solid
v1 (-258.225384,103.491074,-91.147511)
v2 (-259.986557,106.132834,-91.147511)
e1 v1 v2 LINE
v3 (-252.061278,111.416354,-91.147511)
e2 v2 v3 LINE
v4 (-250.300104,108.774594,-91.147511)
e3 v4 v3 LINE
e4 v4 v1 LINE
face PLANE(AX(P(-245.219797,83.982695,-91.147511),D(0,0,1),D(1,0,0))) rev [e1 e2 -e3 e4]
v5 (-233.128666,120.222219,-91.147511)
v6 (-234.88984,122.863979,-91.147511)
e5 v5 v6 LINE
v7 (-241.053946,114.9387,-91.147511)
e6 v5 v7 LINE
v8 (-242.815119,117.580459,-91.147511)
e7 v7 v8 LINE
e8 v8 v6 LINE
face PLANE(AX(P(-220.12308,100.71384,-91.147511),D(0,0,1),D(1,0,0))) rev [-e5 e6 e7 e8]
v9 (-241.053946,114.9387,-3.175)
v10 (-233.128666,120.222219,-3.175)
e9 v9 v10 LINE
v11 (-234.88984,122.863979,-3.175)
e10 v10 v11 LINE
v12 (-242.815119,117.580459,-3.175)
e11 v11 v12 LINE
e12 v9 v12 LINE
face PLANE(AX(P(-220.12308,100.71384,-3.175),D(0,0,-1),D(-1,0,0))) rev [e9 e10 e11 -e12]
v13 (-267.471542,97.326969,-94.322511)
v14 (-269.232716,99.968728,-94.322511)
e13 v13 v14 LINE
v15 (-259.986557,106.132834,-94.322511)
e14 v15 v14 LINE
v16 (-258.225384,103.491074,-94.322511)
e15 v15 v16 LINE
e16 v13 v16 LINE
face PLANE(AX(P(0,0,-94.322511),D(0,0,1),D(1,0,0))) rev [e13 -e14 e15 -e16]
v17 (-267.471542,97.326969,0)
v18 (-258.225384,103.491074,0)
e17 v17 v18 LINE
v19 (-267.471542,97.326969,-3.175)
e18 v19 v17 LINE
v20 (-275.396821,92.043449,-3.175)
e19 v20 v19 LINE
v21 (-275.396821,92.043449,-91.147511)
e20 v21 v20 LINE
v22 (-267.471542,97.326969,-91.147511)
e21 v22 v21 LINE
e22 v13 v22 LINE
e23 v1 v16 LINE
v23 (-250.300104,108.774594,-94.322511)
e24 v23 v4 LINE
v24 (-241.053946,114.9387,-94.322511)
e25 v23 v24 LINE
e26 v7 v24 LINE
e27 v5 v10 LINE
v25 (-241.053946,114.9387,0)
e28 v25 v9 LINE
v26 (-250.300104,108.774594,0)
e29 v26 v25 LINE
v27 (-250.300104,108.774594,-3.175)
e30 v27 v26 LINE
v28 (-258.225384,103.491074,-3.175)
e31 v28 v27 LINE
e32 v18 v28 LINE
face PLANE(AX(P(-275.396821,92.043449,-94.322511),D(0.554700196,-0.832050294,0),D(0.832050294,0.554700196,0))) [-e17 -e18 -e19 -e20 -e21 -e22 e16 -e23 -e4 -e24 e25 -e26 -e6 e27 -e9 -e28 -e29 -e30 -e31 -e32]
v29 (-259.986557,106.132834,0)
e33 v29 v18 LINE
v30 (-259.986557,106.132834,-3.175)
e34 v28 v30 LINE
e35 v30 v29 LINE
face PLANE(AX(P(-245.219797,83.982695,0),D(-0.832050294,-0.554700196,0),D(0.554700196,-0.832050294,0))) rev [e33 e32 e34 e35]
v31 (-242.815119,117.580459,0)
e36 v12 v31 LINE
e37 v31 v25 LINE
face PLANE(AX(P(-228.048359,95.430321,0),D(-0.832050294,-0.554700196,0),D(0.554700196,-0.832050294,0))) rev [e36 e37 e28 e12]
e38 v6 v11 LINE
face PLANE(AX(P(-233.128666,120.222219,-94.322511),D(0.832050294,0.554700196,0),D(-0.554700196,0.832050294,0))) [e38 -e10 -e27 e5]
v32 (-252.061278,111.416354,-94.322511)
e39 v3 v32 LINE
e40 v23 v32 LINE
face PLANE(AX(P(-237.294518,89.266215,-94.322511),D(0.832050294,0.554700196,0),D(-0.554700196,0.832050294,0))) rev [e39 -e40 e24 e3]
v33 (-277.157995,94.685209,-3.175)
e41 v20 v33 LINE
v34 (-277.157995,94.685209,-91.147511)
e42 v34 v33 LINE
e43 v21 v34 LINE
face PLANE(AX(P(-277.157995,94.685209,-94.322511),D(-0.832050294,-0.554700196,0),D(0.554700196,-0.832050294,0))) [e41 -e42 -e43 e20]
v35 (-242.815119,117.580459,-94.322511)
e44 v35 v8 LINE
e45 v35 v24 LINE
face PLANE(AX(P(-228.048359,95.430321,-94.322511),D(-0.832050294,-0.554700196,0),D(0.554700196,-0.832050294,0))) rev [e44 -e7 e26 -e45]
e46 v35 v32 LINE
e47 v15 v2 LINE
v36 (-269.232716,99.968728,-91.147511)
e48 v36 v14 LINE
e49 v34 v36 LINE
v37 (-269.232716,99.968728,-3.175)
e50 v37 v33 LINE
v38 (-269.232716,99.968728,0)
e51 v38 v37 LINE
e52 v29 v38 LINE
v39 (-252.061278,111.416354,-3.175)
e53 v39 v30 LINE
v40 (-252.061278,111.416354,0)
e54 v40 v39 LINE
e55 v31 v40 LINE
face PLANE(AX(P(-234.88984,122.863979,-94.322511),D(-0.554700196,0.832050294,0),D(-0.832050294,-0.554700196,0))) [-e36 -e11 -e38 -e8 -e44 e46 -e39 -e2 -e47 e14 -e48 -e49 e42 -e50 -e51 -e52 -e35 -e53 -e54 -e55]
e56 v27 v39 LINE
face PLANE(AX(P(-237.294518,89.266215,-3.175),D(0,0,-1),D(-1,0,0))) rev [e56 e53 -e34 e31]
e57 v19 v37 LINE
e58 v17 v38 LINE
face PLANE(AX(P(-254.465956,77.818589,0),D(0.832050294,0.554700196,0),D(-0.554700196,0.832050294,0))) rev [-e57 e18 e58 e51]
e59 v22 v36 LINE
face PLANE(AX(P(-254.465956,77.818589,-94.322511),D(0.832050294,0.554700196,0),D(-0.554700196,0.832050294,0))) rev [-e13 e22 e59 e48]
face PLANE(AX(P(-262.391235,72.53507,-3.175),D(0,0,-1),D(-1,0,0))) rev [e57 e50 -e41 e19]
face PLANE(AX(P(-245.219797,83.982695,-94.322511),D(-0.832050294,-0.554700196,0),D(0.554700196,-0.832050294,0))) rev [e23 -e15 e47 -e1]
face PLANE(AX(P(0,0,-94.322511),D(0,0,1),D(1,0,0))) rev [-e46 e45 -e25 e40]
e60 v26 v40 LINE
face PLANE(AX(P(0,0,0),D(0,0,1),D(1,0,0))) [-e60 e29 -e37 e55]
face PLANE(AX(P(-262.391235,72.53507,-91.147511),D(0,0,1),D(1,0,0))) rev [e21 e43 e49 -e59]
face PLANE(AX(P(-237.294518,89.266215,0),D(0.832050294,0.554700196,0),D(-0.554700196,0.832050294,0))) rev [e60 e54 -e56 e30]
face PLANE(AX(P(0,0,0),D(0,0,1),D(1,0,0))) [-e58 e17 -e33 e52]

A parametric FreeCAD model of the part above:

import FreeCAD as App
import Part
import Sketcher
Q = App.Units.Quantity

doc = App.newDocument("Part")
body = doc.addObject("PartDesign::Body", "Body")

sketch1 = body.newObject("Sketcher::SketchObject", "Sketch")
sketch1.AttachmentSupport = (doc.getObject("XY_Plane"), [""])
sketch1.MapMode = "FlatFace"
sketch1.addGeometry([
    Part.LineSegment(App.Vector(-277.2, 94.7, 0), App.Vector(-275.4, 92, 0)),
    Part.LineSegment(App.Vector(-275.4, 92, 0), App.Vector(-233.1, 120.2, 0)),
    Part.LineSegment(App.Vector(-233.1, 120.2, 0), App.Vector(-234.9, 122.9, 0)),
    Part.LineSegment(App.Vector(-234.9, 122.9, 0), App.Vector(-277.2, 94.7, 0)),
], False)
sketch1.addConstraint([
    Sketcher.Constraint("Coincident", 0, 2, 1, 1),
    Sketcher.Constraint("Coincident", 1, 2, 2, 1),
    Sketcher.Constraint("Coincident", 2, 2, 3, 1),
    Sketcher.Constraint("Coincident", 3, 2, 0, 1),
    Sketcher.Constraint("Perpendicular", 0, 1),
    Sketcher.Constraint("Perpendicular", 1, 2),
    Sketcher.Constraint("Perpendicular", 2, 3),
    Sketcher.Constraint("Distance", 1, Q("2 in")),
    Sketcher.Constraint("Distance", 0, Q("0.125 in")),
    Sketcher.Constraint("DistanceX", 0, 2, -1, 1, 275.396821),
    Sketcher.Constraint("DistanceY", -1, 1, 0, 2, 92.043449),
    Sketcher.Constraint("DistanceY", -1, 1, 1, 2, 120.222219),
])
pad1 = body.newObject("PartDesign::Pad", "Pad")
pad1.Profile = sketch1
pad1.Length = 94.322511
pad1.Reversed = True

sketch2 = body.newObject("Sketcher::SketchObject", "Sketch001")
sketch2.Placement = App.Placement(App.Vector(-128.980249, 193.470373, 0), App.Rotation(App.Vector(0.832050294, 0.554700196, 0), App.Vector(0, 0, -0.999999999), App.Vector(-0.554700196, 0.832050294, 0), "ZXY"))
sketch2.addGeometry([
    Part.LineSegment(App.Vector(-178.1, 94.3, 0), App.Vector(-178.1, 91.1, 0)),
    Part.LineSegment(App.Vector(-178.1, 91.1, 0), App.Vector(-168.6, 91.1, 0)),
    Part.LineSegment(App.Vector(-168.6, 91.1, 0), App.Vector(-168.6, 94.3, 0)),
    Part.LineSegment(App.Vector(-168.6, 94.3, 0), App.Vector(-178.1, 94.3, 0)),
    Part.LineSegment(App.Vector(-136.8, 94.3, 0), App.Vector(-136.8, 91.1, 0)),
    Part.LineSegment(App.Vector(-136.8, 91.1, 0), App.Vector(-127.3, 91.1, 0)),
    Part.LineSegment(App.Vector(-127.3, 91.1, 0), App.Vector(-127.3, 94.3, 0)),
    Part.LineSegment(App.Vector(-127.3, 94.3, 0), App.Vector(-136.8, 94.3, 0)),
    Part.LineSegment(App.Vector(-157.4, 94.3, 0), App.Vector(-157.4, 91.1, 0)),
    Part.LineSegment(App.Vector(-157.4, 91.1, 0), App.Vector(-147.9, 91.1, 0)),
    Part.LineSegment(App.Vector(-147.9, 91.1, 0), App.Vector(-147.9, 94.3, 0)),
    Part.LineSegment(App.Vector(-147.9, 94.3, 0), App.Vector(-157.4, 94.3, 0)),
    Part.LineSegment(App.Vector(-178.1, 3.2, 0), App.Vector(-178.1, 0, 0)),
    Part.LineSegment(App.Vector(-178.1, 0, 0), App.Vector(-168.6, 0, 0)),
    Part.LineSegment(App.Vector(-168.6, 0, 0), App.Vector(-168.6, 3.2, 0)),
    Part.LineSegment(App.Vector(-168.6, 3.2, 0), App.Vector(-178.1, 3.2, 0)),
    Part.LineSegment(App.Vector(-136.8, 3.2, 0), App.Vector(-136.8, 0, 0)),
    Part.LineSegment(App.Vector(-136.8, 0, 0), App.Vector(-127.3, 0, 0)),
    Part.LineSegment(App.Vector(-127.3, 0, 0), App.Vector(-127.3, 3.2, 0)),
    Part.LineSegment(App.Vector(-127.3, 3.2, 0), App.Vector(-136.8, 3.2, 0)),
    Part.LineSegment(App.Vector(-157.4, 3.2, 0), App.Vector(-157.4, 0, 0)),
    Part.LineSegment(App.Vector(-157.4, 0, 0), App.Vector(-147.9, 0, 0)),
    Part.LineSegment(App.Vector(-147.9, 0, 0), App.Vector(-147.9, 3.2, 0)),
    Part.LineSegment(App.Vector(-147.9, 3.2, 0), App.Vector(-157.4, 3.2, 0)),
], False)
sketch2.addConstraint([
    Sketcher.Constraint("Coincident", 0, 2, 1, 1),
    Sketcher.Constraint("Coincident", 1, 2, 2, 1),
    Sketcher.Constraint("Coincident", 2, 2, 3, 1),
    Sketcher.Constraint("Coincident", 3, 2, 0, 1),
    Sketcher.Constraint("Coincident", 4, 2, 5, 1),
    Sketcher.Constraint("Coincident", 5, 2, 6, 1),
    Sketcher.Constraint("Coincident", 6, 2, 7, 1),
    Sketcher.Constraint("Coincident", 7, 2, 4, 1),
    Sketcher.Constraint("Coincident", 8, 2, 9, 1),
    Sketcher.Constraint("Coincident", 9, 2, 10, 1),
    Sketcher.Constraint("Coincident", 10, 2, 11, 1),
    Sketcher.Constraint("Coincident", 11, 2, 8, 1),
    Sketcher.Constraint("Coincident", 12, 2, 13, 1),
    Sketcher.Constraint("Coincident", 13, 2, 14, 1),
    Sketcher.Constraint("Coincident", 14, 2, 15, 1),
    Sketcher.Constraint("Coincident", 15, 2, 12, 1),
    Sketcher.Constraint("Coincident", 16, 2, 17, 1),
    Sketcher.Constraint("Coincident", 17, 2, 18, 1),
    Sketcher.Constraint("Coincident", 18, 2, 19, 1),
    Sketcher.Constraint("Coincident", 19, 2, 16, 1),
    Sketcher.Constraint("Coincident", 20, 2, 21, 1),
    Sketcher.Constraint("Coincident", 21, 2, 22, 1),
    Sketcher.Constraint("Coincident", 22, 2, 23, 1),
    Sketcher.Constraint("Coincident", 23, 2, 20, 1),
    Sketcher.Constraint("Vertical", 0),
    Sketcher.Constraint("Horizontal", 1),
    Sketcher.Constraint("Vertical", 2),
    Sketcher.Constraint("Horizontal", 3),
    Sketcher.Constraint("Vertical", 4),
    Sketcher.Constraint("Horizontal", 5),
    Sketcher.Constraint("Vertical", 6),
    Sketcher.Constraint("Horizontal", 7),
    Sketcher.Constraint("Vertical", 8),
    Sketcher.Constraint("Horizontal", 9),
    Sketcher.Constraint("Vertical", 10),
    Sketcher.Constraint("Horizontal", 11),
    Sketcher.Constraint("Vertical", 12),
    Sketcher.Constraint("Horizontal", 13),
    Sketcher.Constraint("Vertical", 14),
    Sketcher.Constraint("Horizontal", 15),
    Sketcher.Constraint("Vertical", 16),
    Sketcher.Constraint("Horizontal", 17),
    Sketcher.Constraint("Vertical", 18),
    Sketcher.Constraint("Horizontal", 19),
    Sketcher.Constraint("Vertical", 20),
    Sketcher.Constraint("Horizontal", 21),
    Sketcher.Constraint("Vertical", 22),
    Sketcher.Constraint("Horizontal", 23),
    Sketcher.Constraint("PointOnObject", 12, 2, -1),
    Sketcher.Constraint("PointOnObject", 16, 2, -1),
    Sketcher.Constraint("PointOnObject", 20, 2, -1),
    Sketcher.Constraint("Horizontal", 1, 2, 4, 2),
    Sketcher.Constraint("Horizontal", 3, 2, 6, 2),
    Sketcher.Constraint("Horizontal", 5, 2, 8, 2),
    Sketcher.Constraint("Horizontal", 7, 2, 10, 2),
    Sketcher.Constraint("Horizontal", 15, 2, 18, 2),
    Sketcher.Constraint("Horizontal", 19, 2, 22, 2),
    Sketcher.Constraint("Vertical", 3, 2, 12, 2),
    Sketcher.Constraint("Vertical", 2, 2, 13, 2),
    Sketcher.Constraint("Vertical", 7, 2, 16, 2),
    Sketcher.Constraint("Vertical", 6, 2, 17, 2),
    Sketcher.Constraint("Vertical", 11, 2, 20, 2),
    Sketcher.Constraint("Vertical", 10, 2, 21, 2),
    Sketcher.Constraint("Equal", 3, 5),
    Sketcher.Constraint("Equal", 7, 9),
    Sketcher.Constraint("Equal", 10, 12),
    Sketcher.Constraint("DistanceX", 0, 2, 5, 2, Q("2 in")),
    Sketcher.Constraint("DistanceX", 1, 1, 1, 2, Q("0.375 in")),
    Sketcher.Constraint("DistanceY", 0, 2, 0, 1, Q("0.125 in")),
    Sketcher.Constraint("DistanceX", 1, 2, 8, 2, Q("0.4375 in")),
    Sketcher.Constraint("DistanceY", -1, 1, 0, 2, 91.147511),
    Sketcher.Constraint("DistanceX", 0, 2, -1, 1, 178.087487),
])
pocket1 = body.newObject("PartDesign::Pocket", "Pocket")
pocket1.Profile = sketch2
pocket1.Type = "ThroughAll"

doc.recompute()
